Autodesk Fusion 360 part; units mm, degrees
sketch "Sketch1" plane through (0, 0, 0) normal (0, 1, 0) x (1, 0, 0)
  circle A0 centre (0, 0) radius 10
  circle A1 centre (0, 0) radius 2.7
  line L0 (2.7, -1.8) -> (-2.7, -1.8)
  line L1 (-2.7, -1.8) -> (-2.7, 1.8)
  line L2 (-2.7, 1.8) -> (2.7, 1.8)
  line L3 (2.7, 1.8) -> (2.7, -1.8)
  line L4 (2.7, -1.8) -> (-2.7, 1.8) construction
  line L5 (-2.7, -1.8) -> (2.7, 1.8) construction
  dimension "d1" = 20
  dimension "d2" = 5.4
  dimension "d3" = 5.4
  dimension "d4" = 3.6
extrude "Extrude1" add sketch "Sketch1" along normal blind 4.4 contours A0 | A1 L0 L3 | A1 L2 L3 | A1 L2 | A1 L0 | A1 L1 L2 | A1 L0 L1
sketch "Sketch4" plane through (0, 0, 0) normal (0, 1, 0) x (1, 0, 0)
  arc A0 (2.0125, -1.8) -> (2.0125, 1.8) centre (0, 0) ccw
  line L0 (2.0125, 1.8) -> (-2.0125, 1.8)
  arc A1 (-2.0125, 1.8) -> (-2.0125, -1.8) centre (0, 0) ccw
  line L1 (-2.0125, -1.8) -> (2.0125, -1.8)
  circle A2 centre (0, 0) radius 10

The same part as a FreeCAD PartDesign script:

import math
import FreeCAD as App
import Part
import Sketcher

V = App.Vector
Q = App.Units.Quantity

doc = App.newDocument("Part")
body = doc.addObject("PartDesign::Body", "Body")

sketch1 = doc.addObject("Sketcher::SketchObject", "Sketch")
body.addObject(sketch1)
sketch1.AttachmentSupport = (doc.XZ_Plane, [""])
sketch1.MapMode = "FlatFace"
sketch1.addGeometry([
    Part.Circle(V(0, 0, 0), V(0, 0, 1), 10),
    Part.ArcOfCircle(Part.Circle(V(0, 0, 0), V(0, 0, 1), 2.7), math.radians(-42), math.radians(42)),
    Part.LineSegment(V(2, 1.8, 0), V(-2, 1.8, 0)),
    Part.ArcOfCircle(Part.Circle(V(0, 0, 0), V(0, 0, 1), 2.7), math.radians(138), math.radians(222)),
    Part.LineSegment(V(-2, -1.8, 0), V(2, -1.8, 0)),
], False)
sketch1.addConstraint([
    Sketcher.Constraint("Coincident", 1, 2, 2, 1),
    Sketcher.Constraint("Coincident", 2, 2, 3, 1),
    Sketcher.Constraint("Coincident", 3, 2, 4, 1),
    Sketcher.Constraint("Coincident", 4, 2, 1, 1),
    Sketcher.Constraint("Horizontal", 2),
    Sketcher.Constraint("Horizontal", 4),
    Sketcher.Constraint("Coincident", 0, 3, -1, 1),
    Sketcher.Constraint("Coincident", 1, 3, -1, 1),
    Sketcher.Constraint("Coincident", 3, 3, -1, 1),
    Sketcher.Constraint("Equal", 1, 3),
    Sketcher.Constraint("Vertical", 2, 2, 3, 2),
    Sketcher.Constraint("Diameter", 0, Q("20 mm")),
    Sketcher.Constraint("Radius", 1, Q("2.7 mm")),
    Sketcher.Constraint("DistanceY", 3, 2, 2, 2, Q("3.6 mm")),
])
pad1 = doc.addObject("PartDesign::Pad", "Pad")
body.addObject(pad1)
pad1.Profile = sketch1
pad1.Length = 4.4
pad1.Reversed = True

doc.recompute()
